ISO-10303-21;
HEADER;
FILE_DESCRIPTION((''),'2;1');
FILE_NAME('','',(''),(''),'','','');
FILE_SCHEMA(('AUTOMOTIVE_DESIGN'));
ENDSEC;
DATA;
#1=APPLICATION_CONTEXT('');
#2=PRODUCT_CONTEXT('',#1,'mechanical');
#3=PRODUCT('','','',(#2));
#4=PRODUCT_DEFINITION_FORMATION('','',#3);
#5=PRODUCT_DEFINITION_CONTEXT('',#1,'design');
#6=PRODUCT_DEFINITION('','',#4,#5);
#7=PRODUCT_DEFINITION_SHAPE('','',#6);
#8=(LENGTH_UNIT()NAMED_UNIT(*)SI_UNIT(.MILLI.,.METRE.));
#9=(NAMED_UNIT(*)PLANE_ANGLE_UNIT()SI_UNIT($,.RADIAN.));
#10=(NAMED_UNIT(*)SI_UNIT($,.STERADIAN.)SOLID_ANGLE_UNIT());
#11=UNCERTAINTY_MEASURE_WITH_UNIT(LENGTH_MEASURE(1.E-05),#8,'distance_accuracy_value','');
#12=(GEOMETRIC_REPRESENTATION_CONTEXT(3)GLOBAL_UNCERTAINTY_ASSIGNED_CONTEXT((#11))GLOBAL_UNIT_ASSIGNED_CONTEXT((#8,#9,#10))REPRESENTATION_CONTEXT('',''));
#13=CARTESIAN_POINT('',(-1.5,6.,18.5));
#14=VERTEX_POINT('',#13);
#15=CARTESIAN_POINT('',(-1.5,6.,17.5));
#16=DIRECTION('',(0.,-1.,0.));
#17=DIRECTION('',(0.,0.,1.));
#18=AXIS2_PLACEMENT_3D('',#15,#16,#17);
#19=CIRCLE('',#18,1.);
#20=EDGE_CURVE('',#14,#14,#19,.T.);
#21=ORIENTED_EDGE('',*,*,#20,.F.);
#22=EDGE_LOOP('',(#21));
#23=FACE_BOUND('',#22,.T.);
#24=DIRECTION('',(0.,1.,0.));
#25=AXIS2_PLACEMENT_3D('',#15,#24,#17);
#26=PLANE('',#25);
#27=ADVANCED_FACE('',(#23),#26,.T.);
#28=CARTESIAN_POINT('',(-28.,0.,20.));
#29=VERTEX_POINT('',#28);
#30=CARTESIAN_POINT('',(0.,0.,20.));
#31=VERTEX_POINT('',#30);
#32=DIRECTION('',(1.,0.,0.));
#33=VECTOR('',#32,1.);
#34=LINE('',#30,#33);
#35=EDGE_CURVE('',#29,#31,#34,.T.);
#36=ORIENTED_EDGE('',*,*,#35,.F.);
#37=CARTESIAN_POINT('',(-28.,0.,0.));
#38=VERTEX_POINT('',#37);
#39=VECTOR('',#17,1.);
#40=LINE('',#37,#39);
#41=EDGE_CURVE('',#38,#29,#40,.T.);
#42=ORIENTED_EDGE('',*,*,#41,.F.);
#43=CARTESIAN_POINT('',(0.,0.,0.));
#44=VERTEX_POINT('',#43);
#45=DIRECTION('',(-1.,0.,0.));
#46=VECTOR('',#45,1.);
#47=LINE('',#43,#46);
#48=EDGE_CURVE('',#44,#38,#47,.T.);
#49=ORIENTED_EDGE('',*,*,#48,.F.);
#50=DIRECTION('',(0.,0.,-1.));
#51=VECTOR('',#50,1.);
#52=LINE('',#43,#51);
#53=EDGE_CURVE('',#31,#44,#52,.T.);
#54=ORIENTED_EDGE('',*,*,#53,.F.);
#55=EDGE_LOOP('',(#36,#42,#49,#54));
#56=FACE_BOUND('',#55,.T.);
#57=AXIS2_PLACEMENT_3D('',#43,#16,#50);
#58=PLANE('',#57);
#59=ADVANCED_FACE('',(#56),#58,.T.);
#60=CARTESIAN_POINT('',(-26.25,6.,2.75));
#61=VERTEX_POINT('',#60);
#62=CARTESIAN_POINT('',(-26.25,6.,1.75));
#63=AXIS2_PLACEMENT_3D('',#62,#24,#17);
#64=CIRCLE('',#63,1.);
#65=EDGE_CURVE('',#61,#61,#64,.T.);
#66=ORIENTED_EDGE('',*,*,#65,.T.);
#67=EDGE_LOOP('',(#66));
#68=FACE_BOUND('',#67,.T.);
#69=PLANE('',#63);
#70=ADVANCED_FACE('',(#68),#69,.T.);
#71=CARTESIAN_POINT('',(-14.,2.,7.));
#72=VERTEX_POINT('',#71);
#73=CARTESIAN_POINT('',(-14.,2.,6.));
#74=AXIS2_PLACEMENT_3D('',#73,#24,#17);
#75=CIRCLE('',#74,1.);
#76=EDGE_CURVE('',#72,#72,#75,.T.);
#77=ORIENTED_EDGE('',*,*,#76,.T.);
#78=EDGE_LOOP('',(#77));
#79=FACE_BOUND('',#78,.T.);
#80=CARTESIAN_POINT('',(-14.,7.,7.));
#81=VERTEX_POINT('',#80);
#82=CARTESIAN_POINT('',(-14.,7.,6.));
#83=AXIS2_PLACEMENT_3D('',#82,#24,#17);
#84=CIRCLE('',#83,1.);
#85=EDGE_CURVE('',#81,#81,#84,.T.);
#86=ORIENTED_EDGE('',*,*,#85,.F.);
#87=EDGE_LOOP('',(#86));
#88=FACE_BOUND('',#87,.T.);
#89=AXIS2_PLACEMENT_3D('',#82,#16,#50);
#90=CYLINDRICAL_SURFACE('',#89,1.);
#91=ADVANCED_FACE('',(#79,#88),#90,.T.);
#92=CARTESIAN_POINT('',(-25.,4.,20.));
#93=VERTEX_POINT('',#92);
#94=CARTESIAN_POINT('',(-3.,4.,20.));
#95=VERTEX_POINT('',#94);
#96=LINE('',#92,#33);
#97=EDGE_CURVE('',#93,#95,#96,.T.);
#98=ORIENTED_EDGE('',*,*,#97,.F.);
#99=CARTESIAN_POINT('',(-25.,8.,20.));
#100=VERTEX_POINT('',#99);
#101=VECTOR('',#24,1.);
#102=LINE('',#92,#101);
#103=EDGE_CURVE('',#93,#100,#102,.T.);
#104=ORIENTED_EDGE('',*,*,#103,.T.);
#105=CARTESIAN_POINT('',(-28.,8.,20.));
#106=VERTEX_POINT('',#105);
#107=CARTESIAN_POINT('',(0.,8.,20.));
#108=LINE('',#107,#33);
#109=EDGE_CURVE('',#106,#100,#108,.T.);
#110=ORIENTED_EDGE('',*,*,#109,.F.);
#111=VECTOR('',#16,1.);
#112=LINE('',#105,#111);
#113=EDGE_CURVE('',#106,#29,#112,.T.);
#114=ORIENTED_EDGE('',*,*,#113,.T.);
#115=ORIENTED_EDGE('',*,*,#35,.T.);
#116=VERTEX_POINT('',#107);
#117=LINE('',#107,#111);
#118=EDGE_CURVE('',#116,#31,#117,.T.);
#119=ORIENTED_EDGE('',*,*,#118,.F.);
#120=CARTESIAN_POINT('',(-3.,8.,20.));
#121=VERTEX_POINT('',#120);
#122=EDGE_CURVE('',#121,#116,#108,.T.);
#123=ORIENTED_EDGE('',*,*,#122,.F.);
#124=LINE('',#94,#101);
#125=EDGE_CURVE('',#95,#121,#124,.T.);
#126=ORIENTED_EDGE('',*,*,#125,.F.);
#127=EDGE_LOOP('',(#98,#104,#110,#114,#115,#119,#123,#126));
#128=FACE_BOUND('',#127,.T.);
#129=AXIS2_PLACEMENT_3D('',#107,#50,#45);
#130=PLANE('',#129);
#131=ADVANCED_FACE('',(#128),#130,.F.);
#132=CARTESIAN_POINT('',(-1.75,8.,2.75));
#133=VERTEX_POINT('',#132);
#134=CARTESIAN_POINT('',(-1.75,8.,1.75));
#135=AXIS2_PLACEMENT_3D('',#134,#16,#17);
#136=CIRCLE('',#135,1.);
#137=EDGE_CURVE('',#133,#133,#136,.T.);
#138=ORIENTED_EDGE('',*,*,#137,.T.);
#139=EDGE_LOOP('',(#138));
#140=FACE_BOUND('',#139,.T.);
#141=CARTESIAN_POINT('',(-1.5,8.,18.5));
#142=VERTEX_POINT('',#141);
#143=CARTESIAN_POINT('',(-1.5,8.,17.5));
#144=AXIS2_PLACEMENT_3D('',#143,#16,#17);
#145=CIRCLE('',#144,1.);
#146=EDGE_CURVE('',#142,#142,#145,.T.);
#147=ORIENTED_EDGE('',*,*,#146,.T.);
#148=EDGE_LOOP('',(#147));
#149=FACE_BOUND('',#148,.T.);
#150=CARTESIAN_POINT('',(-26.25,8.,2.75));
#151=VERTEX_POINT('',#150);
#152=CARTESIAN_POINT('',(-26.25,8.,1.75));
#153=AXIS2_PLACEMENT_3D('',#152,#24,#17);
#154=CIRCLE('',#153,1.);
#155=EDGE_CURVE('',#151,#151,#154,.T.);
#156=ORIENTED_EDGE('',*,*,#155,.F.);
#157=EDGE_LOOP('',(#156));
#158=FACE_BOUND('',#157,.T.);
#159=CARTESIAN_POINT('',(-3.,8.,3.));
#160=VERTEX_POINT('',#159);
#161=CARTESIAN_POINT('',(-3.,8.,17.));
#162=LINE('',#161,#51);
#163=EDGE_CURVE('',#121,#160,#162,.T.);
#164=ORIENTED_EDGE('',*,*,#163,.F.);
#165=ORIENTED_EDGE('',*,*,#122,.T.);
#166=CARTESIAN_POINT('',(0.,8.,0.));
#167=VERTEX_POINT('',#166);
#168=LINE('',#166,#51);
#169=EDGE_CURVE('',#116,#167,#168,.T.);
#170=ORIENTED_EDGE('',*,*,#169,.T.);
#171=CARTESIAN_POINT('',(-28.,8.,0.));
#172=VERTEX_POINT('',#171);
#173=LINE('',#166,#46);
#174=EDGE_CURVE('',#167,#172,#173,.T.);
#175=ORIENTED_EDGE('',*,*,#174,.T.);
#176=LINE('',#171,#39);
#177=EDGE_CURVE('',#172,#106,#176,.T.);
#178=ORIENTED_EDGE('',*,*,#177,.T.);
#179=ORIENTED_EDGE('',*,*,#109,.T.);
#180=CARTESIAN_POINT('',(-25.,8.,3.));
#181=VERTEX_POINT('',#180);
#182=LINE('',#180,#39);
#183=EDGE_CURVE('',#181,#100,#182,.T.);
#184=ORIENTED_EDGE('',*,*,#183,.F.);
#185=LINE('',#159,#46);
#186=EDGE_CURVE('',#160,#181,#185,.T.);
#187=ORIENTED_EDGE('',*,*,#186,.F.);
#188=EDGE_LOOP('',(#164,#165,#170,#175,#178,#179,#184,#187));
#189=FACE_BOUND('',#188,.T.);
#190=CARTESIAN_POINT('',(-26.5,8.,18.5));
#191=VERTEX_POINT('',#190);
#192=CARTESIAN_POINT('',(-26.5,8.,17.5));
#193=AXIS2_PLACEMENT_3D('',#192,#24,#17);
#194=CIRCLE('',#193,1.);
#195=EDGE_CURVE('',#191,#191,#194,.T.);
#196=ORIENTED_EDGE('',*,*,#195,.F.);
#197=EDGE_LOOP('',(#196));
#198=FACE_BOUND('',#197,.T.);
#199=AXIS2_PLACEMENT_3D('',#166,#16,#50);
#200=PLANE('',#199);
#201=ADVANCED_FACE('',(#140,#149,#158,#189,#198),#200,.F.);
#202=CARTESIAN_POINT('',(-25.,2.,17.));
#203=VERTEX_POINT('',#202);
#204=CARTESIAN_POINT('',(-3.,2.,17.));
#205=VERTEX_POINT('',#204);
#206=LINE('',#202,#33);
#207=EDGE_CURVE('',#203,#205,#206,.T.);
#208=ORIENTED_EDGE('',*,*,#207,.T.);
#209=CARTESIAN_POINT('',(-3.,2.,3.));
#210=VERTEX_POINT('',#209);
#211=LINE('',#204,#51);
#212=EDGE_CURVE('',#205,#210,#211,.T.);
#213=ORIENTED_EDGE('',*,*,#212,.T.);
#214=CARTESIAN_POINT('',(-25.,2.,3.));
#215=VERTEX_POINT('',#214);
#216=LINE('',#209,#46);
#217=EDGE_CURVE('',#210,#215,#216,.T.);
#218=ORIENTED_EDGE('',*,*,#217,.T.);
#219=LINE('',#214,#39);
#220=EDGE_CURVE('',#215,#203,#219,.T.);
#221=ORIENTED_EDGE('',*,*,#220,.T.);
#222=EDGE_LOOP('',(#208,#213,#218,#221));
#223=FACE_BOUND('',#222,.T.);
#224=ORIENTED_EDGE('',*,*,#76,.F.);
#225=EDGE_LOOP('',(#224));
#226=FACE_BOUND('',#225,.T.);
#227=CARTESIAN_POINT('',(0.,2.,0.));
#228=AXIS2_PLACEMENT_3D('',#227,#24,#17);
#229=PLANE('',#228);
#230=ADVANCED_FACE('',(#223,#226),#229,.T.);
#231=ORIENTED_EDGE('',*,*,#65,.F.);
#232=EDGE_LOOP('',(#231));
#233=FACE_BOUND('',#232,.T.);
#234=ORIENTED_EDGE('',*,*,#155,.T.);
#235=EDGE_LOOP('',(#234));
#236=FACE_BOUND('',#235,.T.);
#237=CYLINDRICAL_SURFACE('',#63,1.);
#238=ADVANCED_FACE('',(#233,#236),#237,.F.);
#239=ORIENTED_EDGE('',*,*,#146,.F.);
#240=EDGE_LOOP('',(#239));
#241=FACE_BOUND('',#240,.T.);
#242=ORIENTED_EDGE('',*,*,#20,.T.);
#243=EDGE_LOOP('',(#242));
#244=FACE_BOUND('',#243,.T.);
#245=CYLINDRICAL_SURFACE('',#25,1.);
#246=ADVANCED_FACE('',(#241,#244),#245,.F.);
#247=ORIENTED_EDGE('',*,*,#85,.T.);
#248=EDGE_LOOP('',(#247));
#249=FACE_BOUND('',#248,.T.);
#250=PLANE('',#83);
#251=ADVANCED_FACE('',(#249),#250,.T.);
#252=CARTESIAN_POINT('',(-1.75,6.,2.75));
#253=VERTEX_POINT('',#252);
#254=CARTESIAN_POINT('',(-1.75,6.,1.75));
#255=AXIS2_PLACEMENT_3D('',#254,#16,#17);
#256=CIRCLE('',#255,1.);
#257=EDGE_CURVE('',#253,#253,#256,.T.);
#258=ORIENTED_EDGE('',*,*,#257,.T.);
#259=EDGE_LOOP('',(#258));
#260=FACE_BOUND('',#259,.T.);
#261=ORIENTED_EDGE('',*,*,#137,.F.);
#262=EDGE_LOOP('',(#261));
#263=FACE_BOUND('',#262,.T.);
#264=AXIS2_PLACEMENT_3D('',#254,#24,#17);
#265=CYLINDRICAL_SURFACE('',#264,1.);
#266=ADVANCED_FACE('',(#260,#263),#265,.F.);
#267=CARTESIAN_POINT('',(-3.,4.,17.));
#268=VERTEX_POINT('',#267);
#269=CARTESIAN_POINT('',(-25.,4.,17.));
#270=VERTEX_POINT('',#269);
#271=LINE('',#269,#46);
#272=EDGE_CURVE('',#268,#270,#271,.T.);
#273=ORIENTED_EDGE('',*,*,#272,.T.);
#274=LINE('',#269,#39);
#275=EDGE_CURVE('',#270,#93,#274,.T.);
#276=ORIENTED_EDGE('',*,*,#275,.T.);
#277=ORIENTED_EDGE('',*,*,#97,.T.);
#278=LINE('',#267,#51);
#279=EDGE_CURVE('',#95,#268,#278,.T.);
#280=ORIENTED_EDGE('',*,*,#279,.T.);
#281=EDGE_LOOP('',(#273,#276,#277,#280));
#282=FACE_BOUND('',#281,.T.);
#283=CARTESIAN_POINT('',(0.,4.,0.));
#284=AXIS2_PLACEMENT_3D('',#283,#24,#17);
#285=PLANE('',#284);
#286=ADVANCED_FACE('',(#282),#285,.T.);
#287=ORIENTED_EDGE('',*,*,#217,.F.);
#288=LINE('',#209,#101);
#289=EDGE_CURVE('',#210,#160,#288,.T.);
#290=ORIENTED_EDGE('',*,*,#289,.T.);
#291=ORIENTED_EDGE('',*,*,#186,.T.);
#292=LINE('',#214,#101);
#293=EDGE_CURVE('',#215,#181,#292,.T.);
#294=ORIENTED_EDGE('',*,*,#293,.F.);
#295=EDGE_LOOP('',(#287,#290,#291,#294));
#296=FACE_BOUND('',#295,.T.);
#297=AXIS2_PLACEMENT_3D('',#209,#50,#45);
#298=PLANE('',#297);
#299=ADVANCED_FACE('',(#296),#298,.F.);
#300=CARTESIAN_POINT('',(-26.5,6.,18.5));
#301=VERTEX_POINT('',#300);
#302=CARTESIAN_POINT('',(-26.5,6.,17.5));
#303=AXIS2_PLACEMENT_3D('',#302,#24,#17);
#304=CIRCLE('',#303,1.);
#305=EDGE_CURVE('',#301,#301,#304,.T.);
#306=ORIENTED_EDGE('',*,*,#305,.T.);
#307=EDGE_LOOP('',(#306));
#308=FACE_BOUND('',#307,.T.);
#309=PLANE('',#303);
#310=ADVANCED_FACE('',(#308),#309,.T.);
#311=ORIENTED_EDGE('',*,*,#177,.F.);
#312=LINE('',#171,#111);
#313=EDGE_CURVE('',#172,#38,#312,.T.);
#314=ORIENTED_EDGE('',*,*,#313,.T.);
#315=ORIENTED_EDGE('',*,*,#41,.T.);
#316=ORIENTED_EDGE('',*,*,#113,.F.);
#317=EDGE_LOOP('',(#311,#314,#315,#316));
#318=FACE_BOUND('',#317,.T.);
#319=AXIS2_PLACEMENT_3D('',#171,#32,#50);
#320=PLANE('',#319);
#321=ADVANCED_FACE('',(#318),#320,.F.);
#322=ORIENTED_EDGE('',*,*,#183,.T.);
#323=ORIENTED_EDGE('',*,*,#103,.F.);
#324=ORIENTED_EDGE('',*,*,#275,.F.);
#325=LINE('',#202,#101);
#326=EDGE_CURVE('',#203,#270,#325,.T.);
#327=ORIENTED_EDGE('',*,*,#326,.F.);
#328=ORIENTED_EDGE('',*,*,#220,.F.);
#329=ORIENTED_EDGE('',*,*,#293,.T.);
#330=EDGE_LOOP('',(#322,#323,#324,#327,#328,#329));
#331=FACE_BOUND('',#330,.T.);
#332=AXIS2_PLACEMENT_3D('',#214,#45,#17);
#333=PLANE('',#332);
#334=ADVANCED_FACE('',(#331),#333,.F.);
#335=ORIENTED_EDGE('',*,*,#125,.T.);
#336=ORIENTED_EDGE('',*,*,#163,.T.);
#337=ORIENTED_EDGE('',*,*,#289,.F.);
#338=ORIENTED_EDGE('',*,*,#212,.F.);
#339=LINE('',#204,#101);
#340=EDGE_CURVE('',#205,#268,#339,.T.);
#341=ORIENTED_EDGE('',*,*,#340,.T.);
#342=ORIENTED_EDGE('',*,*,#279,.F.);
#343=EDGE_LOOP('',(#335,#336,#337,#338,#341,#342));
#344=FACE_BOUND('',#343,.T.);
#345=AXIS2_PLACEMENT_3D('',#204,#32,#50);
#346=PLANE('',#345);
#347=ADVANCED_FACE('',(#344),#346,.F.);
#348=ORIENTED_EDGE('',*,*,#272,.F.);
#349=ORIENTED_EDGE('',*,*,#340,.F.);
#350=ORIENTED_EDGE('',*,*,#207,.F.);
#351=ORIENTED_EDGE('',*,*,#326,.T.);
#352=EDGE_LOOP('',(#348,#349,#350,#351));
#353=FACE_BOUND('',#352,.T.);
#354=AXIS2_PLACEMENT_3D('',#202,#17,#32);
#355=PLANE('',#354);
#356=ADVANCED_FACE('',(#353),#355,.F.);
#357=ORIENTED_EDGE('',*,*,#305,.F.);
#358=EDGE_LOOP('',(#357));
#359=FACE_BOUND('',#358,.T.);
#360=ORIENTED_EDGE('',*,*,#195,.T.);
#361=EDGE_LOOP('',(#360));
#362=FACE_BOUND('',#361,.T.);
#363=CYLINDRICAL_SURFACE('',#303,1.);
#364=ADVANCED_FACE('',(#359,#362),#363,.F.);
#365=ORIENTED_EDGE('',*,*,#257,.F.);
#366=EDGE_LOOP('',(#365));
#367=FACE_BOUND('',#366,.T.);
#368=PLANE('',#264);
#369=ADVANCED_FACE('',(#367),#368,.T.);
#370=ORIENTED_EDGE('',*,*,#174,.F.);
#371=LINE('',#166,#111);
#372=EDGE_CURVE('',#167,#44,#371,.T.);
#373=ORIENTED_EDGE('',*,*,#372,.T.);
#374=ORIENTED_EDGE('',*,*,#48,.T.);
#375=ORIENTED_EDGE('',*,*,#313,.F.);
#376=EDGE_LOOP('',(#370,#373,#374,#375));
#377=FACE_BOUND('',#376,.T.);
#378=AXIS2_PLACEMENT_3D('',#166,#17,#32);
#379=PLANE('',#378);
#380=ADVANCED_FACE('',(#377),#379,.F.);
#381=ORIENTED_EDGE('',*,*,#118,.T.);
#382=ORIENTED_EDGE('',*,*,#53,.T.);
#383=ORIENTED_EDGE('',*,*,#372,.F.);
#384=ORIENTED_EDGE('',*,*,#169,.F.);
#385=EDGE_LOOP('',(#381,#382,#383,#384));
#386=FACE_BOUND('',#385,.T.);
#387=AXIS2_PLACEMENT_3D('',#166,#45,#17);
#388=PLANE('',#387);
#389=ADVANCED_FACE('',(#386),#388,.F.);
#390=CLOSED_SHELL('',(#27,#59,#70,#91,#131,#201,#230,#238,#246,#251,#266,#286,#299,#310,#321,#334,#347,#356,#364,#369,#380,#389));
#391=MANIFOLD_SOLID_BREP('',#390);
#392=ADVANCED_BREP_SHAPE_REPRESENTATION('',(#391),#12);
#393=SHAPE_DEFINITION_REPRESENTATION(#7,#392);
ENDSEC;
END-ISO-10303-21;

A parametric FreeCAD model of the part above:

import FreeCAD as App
import Part
import Sketcher
Q = App.Units.Quantity


def add_polygon(sketch, points):
    """Adds a closed chain of lines whose ends are joined by coincident constraints."""
    first, n = sketch.GeometryCount, len(points)
    for a, b in zip(points, points[1:] + points[:1]):
        sketch.addGeometry(Part.LineSegment(App.Vector(*a, 0), App.Vector(*b, 0)), False)
    for i in range(n):
        sketch.addConstraint(Sketcher.Constraint("Coincident", first + i, 2, first + (i + 1) % n, 1))

doc = App.newDocument("Part")
body = doc.addObject("PartDesign::Body", "Body")

sketch1 = body.newObject("Sketcher::SketchObject", "Sketch")
sketch1.AttachmentSupport = (doc.getObject("XZ_Plane"), [""])
sketch1.MapMode = "FlatFace"
add_polygon(sketch1, [(-28, 0), (-28, 20), (0, 20), (0, 0)])
sketch1.addConstraint([
    Sketcher.Constraint("Vertical", 0),
    Sketcher.Constraint("Horizontal", 1),
    Sketcher.Constraint("Vertical", 2),
    Sketcher.Constraint("Horizontal", 3),
    Sketcher.Constraint("Coincident", 2, 2, -1, 1),
    Sketcher.Constraint("DistanceX", 1, 1, 1, 2, Q("28 mm")),
    Sketcher.Constraint("DistanceY", 0, 1, 0, 2, Q("20 mm")),
])
pad1 = body.newObject("PartDesign::Pad", "Pad")
pad1.Profile = sketch1
pad1.Length = 8
pad1.Reversed = True

sketch2 = body.newObject("Sketcher::SketchObject", "Sketch001")
sketch2.AttachmentSupport = (doc.getObject("XZ_Plane"), [""])
sketch2.MapMode = "FlatFace"
sketch2.AttachmentOffset = App.Placement(App.Vector(0, 0, -8), App.Rotation())
add_polygon(sketch2, [(-25, 3), (-25, 17), (-3, 17), (-3, 3)])
sketch2.addConstraint([
    Sketcher.Constraint("Vertical", 0),
    Sketcher.Constraint("Horizontal", 1),
    Sketcher.Constraint("Vertical", 2),
    Sketcher.Constraint("Horizontal", 3),
    Sketcher.Constraint("DistanceX", 1, 1, 1, 2, Q("22 mm")),
    Sketcher.Constraint("DistanceY", 0, 1, 0, 2, Q("14 mm")),
    Sketcher.Constraint("DistanceX", 0, 2, -1, 1, Q("25 mm")),
    Sketcher.Constraint("DistanceY", -1, 1, 0, 2, Q("17 mm")),
])
pocket1 = body.newObject("PartDesign::Pocket", "Pocket")
pocket1.Profile = sketch2
pocket1.Length = 6
pocket1.Reversed = True

sketch3 = body.newObject("Sketcher::SketchObject", "Sketch002")
sketch3.AttachmentSupport = (doc.getObject("XZ_Plane"), [""])
sketch3.MapMode = "FlatFace"
sketch3.AttachmentOffset = App.Placement(App.Vector(0, 0, -8), App.Rotation())
add_polygon(sketch3, [(-25, 17), (-25, 20), (-3, 20), (-3, 17)])
sketch3.addConstraint([
    Sketcher.Constraint("Vertical", 0),
    Sketcher.Constraint("Horizontal", 1),
    Sketcher.Constraint("Vertical", 2),
    Sketcher.Constraint("Horizontal", 3),
    Sketcher.Constraint("DistanceX", 1, 1, 1, 2, Q("22 mm")),
    Sketcher.Constraint("DistanceY", 0, 1, 0, 2, Q("3 mm")),
    Sketcher.Constraint("DistanceX", 0, 2, -1, 1, Q("25 mm")),
    Sketcher.Constraint("DistanceY", -1, 1, 0, 2, Q("20 mm")),
])
pocket2 = body.newObject("PartDesign::Pocket", "Pocket001")
pocket2.Profile = sketch3
pocket2.Length = 4
pocket2.Reversed = True

sketch4 = body.newObject("Sketcher::SketchObject", "Sketch003")
sketch4.AttachmentSupport = (doc.getObject("XZ_Plane"), [""])
sketch4.MapMode = "FlatFace"
sketch4.AttachmentOffset = App.Placement(App.Vector(0, 0, -2), App.Rotation())
sketch4.addGeometry(Part.Circle(App.Vector(-14, 6, 0), App.Vector(0, 0, 1), 1), False)
sketch4.addConstraint([
    Sketcher.Constraint("Diameter", 0, Q("2 mm")),
    Sketcher.Constraint("DistanceX", 0, 3, -1, 1, Q("14 mm")),
    Sketcher.Constraint("DistanceY", -1, 1, 0, 3, Q("6 mm")),
])
pad2 = body.newObject("PartDesign::Pad", "Pad001")
pad2.Profile = sketch4
pad2.Length = 5
pad2.Reversed = True

sketch5 = body.newObject("Sketcher::SketchObject", "Sketch004")
sketch5.AttachmentSupport = (doc.getObject("XZ_Plane"), [""])
sketch5.MapMode = "FlatFace"
sketch5.AttachmentOffset = App.Placement(App.Vector(0, 0, -8), App.Rotation())
sketch5.addGeometry(Part.Circle(App.Vector(-26.2, 1.8, 0), App.Vector(0, 0, 1), 1), False)
sketch5.addConstraint([
    Sketcher.Constraint("Diameter", 0, Q("2 mm")),
    Sketcher.Constraint("DistanceX", 0, 3, -1, 1, Q("26.25 mm")),
    Sketcher.Constraint("DistanceY", -1, 1, 0, 3, Q("1.75 mm")),
])
pocket3 = body.newObject("PartDesign::Pocket", "Pocket002")
pocket3.Profile = sketch5
pocket3.Length = 2
pocket3.Reversed = True
doc.recompute()

datumplane = body.newObject("PartDesign::Plane", "DatumPlane")
datumplane.AttachmentSupport = (doc.getObject("YZ_Plane"), [""])
datumplane.MapMode = "FlatFace"
datumplane.AttachmentOffset = App.Placement(App.Vector(0, 0, -14), App.Rotation())
mirrored = body.newObject("PartDesign::Mirrored", "Mirrored")
mirrored.Originals = [pocket3]
mirrored.MirrorPlane = (datumplane, [""])
body.Tip = mirrored

sketch6 = body.newObject("Sketcher::SketchObject", "Sketch005")
sketch6.AttachmentSupport = (doc.getObject("XZ_Plane"), [""])
sketch6.MapMode = "FlatFace"
sketch6.AttachmentOffset = App.Placement(App.Vector(0, 0, -8), App.Rotation())
sketch6.addGeometry(Part.Circle(App.Vector(-26.5, 17.5, 0), App.Vector(0, 0, 1), 1), False)
sketch6.addConstraint([
    Sketcher.Constraint("Diameter", 0, Q("2 mm")),
    Sketcher.Constraint("DistanceX", 0, 3, -1, 1, Q("26.5 mm")),
    Sketcher.Constraint("DistanceY", -1, 1, 0, 3, Q("17.5 mm")),
])
pocket4 = body.newObject("PartDesign::Pocket", "Pocket003")
pocket4.Profile = sketch6
pocket4.Length = 2
pocket4.Reversed = True
doc.recompute()

datumplane2 = body.newObject("PartDesign::Plane", "DatumPlane001")
datumplane2.AttachmentSupport = (doc.getObject("YZ_Plane"), [""])
datumplane2.MapMode = "FlatFace"
datumplane2.AttachmentOffset = App.Placement(App.Vector(0, 0, -14), App.Rotation())
mirrored2 = body.newObject("PartDesign::Mirrored", "Mirrored001")
mirrored2.Originals = [pocket4]
mirrored2.MirrorPlane = (datumplane2, [""])
body.Tip = mirrored2

doc.recompute()
